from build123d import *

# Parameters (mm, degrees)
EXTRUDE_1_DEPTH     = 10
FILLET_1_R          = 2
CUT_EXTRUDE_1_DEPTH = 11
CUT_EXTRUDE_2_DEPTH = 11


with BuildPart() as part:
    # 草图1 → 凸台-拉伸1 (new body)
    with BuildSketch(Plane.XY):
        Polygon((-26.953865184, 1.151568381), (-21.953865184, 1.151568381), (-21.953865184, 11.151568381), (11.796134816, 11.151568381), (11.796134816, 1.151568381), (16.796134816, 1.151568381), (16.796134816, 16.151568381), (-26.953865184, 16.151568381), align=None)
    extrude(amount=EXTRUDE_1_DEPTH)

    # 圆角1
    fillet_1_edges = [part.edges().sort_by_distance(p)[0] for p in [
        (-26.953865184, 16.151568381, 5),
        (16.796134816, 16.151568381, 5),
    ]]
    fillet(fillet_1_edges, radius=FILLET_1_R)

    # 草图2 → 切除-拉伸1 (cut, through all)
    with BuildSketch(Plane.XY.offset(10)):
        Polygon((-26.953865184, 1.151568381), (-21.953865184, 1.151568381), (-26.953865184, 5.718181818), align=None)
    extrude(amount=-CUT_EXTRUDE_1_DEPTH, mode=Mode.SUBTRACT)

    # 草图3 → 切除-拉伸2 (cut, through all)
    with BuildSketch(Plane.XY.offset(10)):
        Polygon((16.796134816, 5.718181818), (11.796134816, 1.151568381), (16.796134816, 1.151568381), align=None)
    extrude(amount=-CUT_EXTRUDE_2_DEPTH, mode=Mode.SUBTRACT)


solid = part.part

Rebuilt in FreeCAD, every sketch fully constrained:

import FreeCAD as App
import Part
import Sketcher
from FreeCAD import Vector


def edges_at(feature, points):
    """Names of the edges that pass closest to the given points."""
    edges = feature.Shape.Edges
    near = lambda p: min(range(len(edges)), key=lambda i: edges[i].distToShape(Part.Vertex(*p))[0])
    return sorted({f"Edge{near(p) + 1}" for p in points})


def add_polygon(sketch, points):
    """Adds a closed chain of lines whose ends are joined by coincident constraints."""
    first, n = sketch.GeometryCount, len(points)
    for a, b in zip(points, points[1:] + points[:1]):
        sketch.addGeometry(Part.LineSegment(App.Vector(*a, 0), App.Vector(*b, 0)), False)
    for i in range(n):
        sketch.addConstraint(Sketcher.Constraint("Coincident", first + i, 2, first + (i + 1) % n, 1))

doc = App.newDocument("Part")
body = doc.addObject("PartDesign::Body", "Body")

# Sketch on XY plane
sketch1 = doc.addObject("Sketcher::SketchObject", "Sketch")
body.addObject(sketch1)
sketch1.AttachmentSupport = (doc.XY_Plane, [""])
sketch1.MapMode = "FlatFace"
add_polygon(sketch1, [(-27, 1.2), (-22, 1.2), (-22, 11.2), (11.8, 11.2), (11.8, 1.2), (16.8, 1.2), (16.8, 16.2), (-27, 16.2)])  # lines 0-7
sketch1.addConstraint([
    Sketcher.Constraint("Horizontal", 0),
    Sketcher.Constraint("Vertical", 1),
    Sketcher.Constraint("Horizontal", 2),
    Sketcher.Constraint("Vertical", 3),
    Sketcher.Constraint("Horizontal", 4),
    Sketcher.Constraint("Vertical", 5),
    Sketcher.Constraint("Horizontal", 6),
    Sketcher.Constraint("Vertical", 7),
    Sketcher.Constraint("Horizontal", 0, 2, 3, 2),
    Sketcher.Constraint("Equal", 0, 4),
    Sketcher.Constraint("DistanceX", 0, 1, 0, 2, 5.0),
    Sketcher.Constraint("DistanceY", 1, 1, 1, 2, 10.0),
    Sketcher.Constraint("DistanceY", 5, 1, 5, 2, 15.0),
    Sketcher.Constraint("DistanceX", 2, 1, 2, 2, 33.75),
    Sketcher.Constraint("DistanceY", -1, 1, 0, 2, 1.151568),
    Sketcher.Constraint("DistanceX", 0, 2, -1, 1, 21.953865),
])
pad1 = doc.addObject("PartDesign::Pad", "Pad")
body.addObject(pad1)
pad1.Profile = sketch1
pad1.Length = 10
doc.recompute()

fillet = doc.addObject("PartDesign::Fillet", "Fillet")
body.addObject(fillet)
fillet.Base = (pad1, edges_at(pad1, [(-26.954, 16.152, 5), (16.796, 16.152, 5)]))
fillet.Radius = 2

# Sketch on XY plane
sketch2 = doc.addObject("Sketcher::SketchObject", "Sketch001")
body.addObject(sketch2)
sketch2.AttachmentSupport = (doc.XY_Plane, [""])
sketch2.MapMode = "FlatFace"
sketch2.AttachmentOffset = App.Placement(Vector(0, 0, 10), App.Rotation())
add_polygon(sketch2, [(-27, 1.2), (-22, 1.2), (-27, 5.7)])  # lines 0-2
sketch2.addConstraint([
    Sketcher.Constraint("Horizontal", 0),
    Sketcher.Constraint("Vertical", 2),
    Sketcher.Constraint("DistanceX", 0, 1, 0, 2, 5.0),
    Sketcher.Constraint("DistanceY", 2, 2, 2, 1, 4.566613),
    Sketcher.Constraint("DistanceY", -1, 1, 0, 2, 1.151568),
    Sketcher.Constraint("DistanceX", 0, 2, -1, 1, 21.953865),
])
pocket1 = doc.addObject("PartDesign::Pocket", "Pocket")
body.addObject(pocket1)
pocket1.Profile = sketch2
pocket1.Type = "ThroughAll"

# Sketch on XY plane
sketch3 = doc.addObject("Sketcher::SketchObject", "Sketch002")
body.addObject(sketch3)
sketch3.AttachmentSupport = (doc.XY_Plane, [""])
sketch3.MapMode = "FlatFace"
sketch3.AttachmentOffset = App.Placement(Vector(0, 0, 10), App.Rotation())
add_polygon(sketch3, [(16.8, 5.7), (11.8, 1.2), (16.8, 1.2)])  # lines 0-2
sketch3.addConstraint([
    Sketcher.Constraint("Horizontal", 1),
    Sketcher.Constraint("Vertical", 2),
    Sketcher.Constraint("DistanceX", 1, 1, 1, 2, 5.0),
    Sketcher.Constraint("DistanceY", 2, 1, 2, 2, 4.566613),
    Sketcher.Constraint("DistanceY", -1, 1, 0, 2, 1.151568),
    Sketcher.Constraint("DistanceX", -1, 1, 0, 2, 11.796135),
])
pocket2 = doc.addObject("PartDesign::Pocket", "Pocket001")
body.addObject(pocket2)
pocket2.Profile = sketch3
pocket2.Type = "ThroughAll"

doc.recompute()
